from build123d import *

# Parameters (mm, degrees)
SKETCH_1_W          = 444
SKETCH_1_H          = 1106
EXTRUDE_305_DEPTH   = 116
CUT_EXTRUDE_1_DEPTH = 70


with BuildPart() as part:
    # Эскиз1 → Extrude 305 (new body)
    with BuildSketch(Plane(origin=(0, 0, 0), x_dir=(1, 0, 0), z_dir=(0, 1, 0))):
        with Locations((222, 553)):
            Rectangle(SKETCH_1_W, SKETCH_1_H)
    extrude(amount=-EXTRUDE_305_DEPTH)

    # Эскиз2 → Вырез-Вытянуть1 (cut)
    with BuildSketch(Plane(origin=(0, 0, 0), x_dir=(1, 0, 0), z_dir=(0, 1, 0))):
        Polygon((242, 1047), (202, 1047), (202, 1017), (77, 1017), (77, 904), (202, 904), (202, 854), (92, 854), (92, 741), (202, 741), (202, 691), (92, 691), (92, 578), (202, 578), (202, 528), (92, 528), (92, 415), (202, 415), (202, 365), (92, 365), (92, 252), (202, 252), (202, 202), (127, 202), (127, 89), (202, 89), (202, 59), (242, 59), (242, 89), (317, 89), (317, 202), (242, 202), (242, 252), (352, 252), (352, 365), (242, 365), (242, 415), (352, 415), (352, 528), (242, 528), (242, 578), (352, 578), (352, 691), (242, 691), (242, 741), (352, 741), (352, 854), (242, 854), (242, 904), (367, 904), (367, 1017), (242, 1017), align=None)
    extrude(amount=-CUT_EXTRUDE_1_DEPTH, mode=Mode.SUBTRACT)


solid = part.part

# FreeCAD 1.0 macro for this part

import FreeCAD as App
import Part
import Sketcher

V = App.Vector
Q = App.Units.Quantity


def add_polygon(sketch, points):
    """Adds a closed chain of lines whose ends are joined by coincident constraints."""
    first, n = sketch.GeometryCount, len(points)
    for a, b in zip(points, points[1:] + points[:1]):
        sketch.addGeometry(Part.LineSegment(App.Vector(*a, 0), App.Vector(*b, 0)), False)
    for i in range(n):
        sketch.addConstraint(Sketcher.Constraint("Coincident", first + i, 2, first + (i + 1) % n, 1))

doc = App.newDocument("Part")
body = doc.addObject("PartDesign::Body", "Body")

# Sketch on XZ plane
sketch1 = doc.addObject("Sketcher::SketchObject", "Sketch")
body.addObject(sketch1)
sketch1.AttachmentSupport = (doc.XZ_Plane, [""])
sketch1.MapMode = "FlatFace"
add_polygon(sketch1, [(0, -1106), (0, 0), (444, 0), (444, -1106)])  # lines 0-3
sketch1.addConstraint([
    Sketcher.Constraint("Vertical", 0),
    Sketcher.Constraint("Horizontal", 1),
    Sketcher.Constraint("Vertical", 2),
    Sketcher.Constraint("Horizontal", 3),
    Sketcher.Constraint("Coincident", 0, 2, -1, 1),
    Sketcher.Constraint("DistanceX", 1, 1, 1, 2, Q("444 mm")),
    Sketcher.Constraint("DistanceY", 0, 1, 0, 2, Q("1106 mm")),
])
pad1 = doc.addObject("PartDesign::Pad", "Pad")
body.addObject(pad1)
pad1.Profile = sketch1
pad1.Length = 116

# Sketch on XZ plane
sketch2 = doc.addObject("Sketcher::SketchObject", "Sketch001")
body.addObject(sketch2)
sketch2.AttachmentSupport = (doc.XZ_Plane, [""])
sketch2.MapMode = "FlatFace"
add_polygon(sketch2, [(242, -1047), (202, -1047), (202, -1017), (77, -1017), (77, -904), (202, -904), (202, -854), (92, -854), (92, -741), (202, -741), (202, -691), (92, -691), (92, -578), (202, -578), (202, -528), (92, -528), (92, -415), (202, -415), (202, -365), (92, -365), (92, -252), (202, -252), (202, -202), (127, -202), (127, -89), (202, -89), (202, -59), (242, -59), (242, -89), (317, -89), (317, -202), (242, -202), (242, -252), (352, -252), (352, -365), (242, -365), (242, -415), (352, -415), (352, -528), (242, -528), (242, -578), (352, -578), (352, -691), (242, -691), (242, -741), (352, -741), (352, -854), (242, -854), (242, -904), (367, -904), (367, -1017), (242, -1017)])  # lines 0-51
sketch2.addConstraint([
    Sketcher.Constraint("Horizontal", 0),
    Sketcher.Constraint("Vertical", 1),
    Sketcher.Constraint("Horizontal", 2),
    Sketcher.Constraint("Vertical", 3),
    Sketcher.Constraint("Horizontal", 4),
    Sketcher.Constraint("Vertical", 5),
    Sketcher.Constraint("Horizontal", 6),
    Sketcher.Constraint("Vertical", 7),
    Sketcher.Constraint("Horizontal", 8),
    Sketcher.Constraint("Vertical", 9),
    Sketcher.Constraint("Horizontal", 10),
    Sketcher.Constraint("Vertical", 11),
    Sketcher.Constraint("Horizontal", 12),
    Sketcher.Constraint("Vertical", 13),
    Sketcher.Constraint("Horizontal", 14),
    Sketcher.Constraint("Vertical", 15),
    Sketcher.Constraint("Horizontal", 16),
    Sketcher.Constraint("Vertical", 17),
    Sketcher.Constraint("Horizontal", 18),
    Sketcher.Constraint("Vertical", 19),
    Sketcher.Constraint("Horizontal", 20),
    Sketcher.Constraint("Vertical", 21),
    Sketcher.Constraint("Horizontal", 22),
    Sketcher.Constraint("Vertical", 23),
    Sketcher.Constraint("Horizontal", 24),
    Sketcher.Constraint("Vertical", 25),
    Sketcher.Constraint("Horizontal", 26),
    Sketcher.Constraint("Vertical", 27),
    Sketcher.Constraint("Horizontal", 28),
    Sketcher.Constraint("Vertical", 29),
    Sketcher.Constraint("Horizontal", 30),
    Sketcher.Constraint("Vertical", 31),
    Sketcher.Constraint("Horizontal", 32),
    Sketcher.Constraint("Vertical", 33),
    Sketcher.Constraint("Horizontal", 34),
    Sketcher.Constraint("Vertical", 35),
    Sketcher.Constraint("Horizontal", 36),
    Sketcher.Constraint("Vertical", 37),
    Sketcher.Constraint("Horizontal", 38),
    Sketcher.Constraint("Vertical", 39),
    Sketcher.Constraint("Horizontal", 40),
    Sketcher.Constraint("Vertical", 41),
    Sketcher.Constraint("Horizontal", 42),
    Sketcher.Constraint("Vertical", 43),
    Sketcher.Constraint("Horizontal", 44),
    Sketcher.Constraint("Vertical", 45),
    Sketcher.Constraint("Horizontal", 46),
    Sketcher.Constraint("Vertical", 47),
    Sketcher.Constraint("Horizontal", 48),
    Sketcher.Constraint("Vertical", 49),
    Sketcher.Constraint("Horizontal", 50),
    Sketcher.Constraint("Vertical", 51),
    Sketcher.Constraint("Horizontal", 24, 2, 27, 2),
    Sketcher.Constraint("Horizontal", 22, 2, 29, 2),
    Sketcher.Constraint("Horizontal", 20, 2, 31, 2),
    Sketcher.Constraint("Horizontal", 18, 2, 33, 2),
    Sketcher.Constraint("Horizontal", 16, 2, 35, 2),
    Sketcher.Constraint("Horizontal", 14, 2, 37, 2),
    Sketcher.Constraint("Horizontal", 12, 2, 39, 2),
    Sketcher.Constraint("Horizontal", 10, 2, 41, 2),
    Sketcher.Constraint("Horizontal", 8, 2, 43, 2),
    Sketcher.Constraint("Horizontal", 6, 2, 45, 2),
    Sketcher.Constraint("Horizontal", 4, 2, 47, 2),
    Sketcher.Constraint("Horizontal", 2, 2, 49, 2),
    Sketcher.Constraint("Vertical", 1, 2, 4, 2),
    Sketcher.Constraint("Vertical", 5, 2, 8, 2),
    Sketcher.Constraint("Vertical", 7, 2, 10, 2),
    Sketcher.Constraint("Vertical", 9, 2, 12, 2),
    Sketcher.Constraint("Vertical", 11, 2, 14, 2),
    Sketcher.Constraint("Vertical", 13, 2, 16, 2),
    Sketcher.Constraint("Vertical", 15, 2, 18, 2),
    Sketcher.Constraint("Vertical", 17, 2, 20, 2),
    Sketcher.Constraint("Vertical", 21, 2, 24, 2),
    Sketcher.Constraint("Vertical", 27, 2, 30, 2),
    Sketcher.Constraint("Vertical", 31, 2, 34, 2),
    Sketcher.Constraint("Vertical", 33, 2, 36, 2),
    Sketcher.Constraint("Vertical", 35, 2, 38, 2),
    Sketcher.Constraint("Vertical", 37, 2, 40, 2),
    Sketcher.Constraint("Vertical", 39, 2, 42, 2),
    Sketcher.Constraint("Vertical", 41, 2, 44, 2),
    Sketcher.Constraint("Vertical", 43, 2, 46, 2),
    Sketcher.Constraint("Vertical", 47, 2, 50, 2),
    Sketcher.Constraint("Equal", 24, 28),
    Sketcher.Constraint("Equal", 20, 32),
    Sketcher.Constraint("Equal", 4, 48),
    Sketcher.Constraint("Equal", 3, 7),
    Sketcher.Constraint("Equal", 5, 9),
    Sketcher.Constraint("Equal", 7, 11),
    Sketcher.Constraint("Equal", 9, 13),
    Sketcher.Constraint("Equal", 11, 15),
    Sketcher.Constraint("Equal", 13, 17),
    Sketcher.Constraint("Equal", 15, 19),
    Sketcher.Constraint("Equal", 17, 21),
    Sketcher.Constraint("Equal", 19, 23),
    Sketcher.Constraint("Equal", 1, 25),
    Sketcher.Constraint("DistanceX", 0, 2, 0, 1, Q("40 mm")),
    Sketcher.Constraint("DistanceX", 2, 2, 2, 1, Q("125 mm")),
    Sketcher.Constraint("DistanceX", 6, 2, 6, 1, Q("110 mm")),
    Sketcher.Constraint("DistanceX", 22, 2, 22, 1, Q("75 mm")),
    Sketcher.Constraint("DistanceY", 1, 1, 1, 2, Q("30 mm")),
    Sketcher.Constraint("DistanceY", 3, 1, 3, 2, Q("113 mm")),
    Sketcher.Constraint("DistanceY", 5, 1, 5, 2, Q("50 mm")),
    Sketcher.Constraint("DistanceX", -1, 1, 0, 2, Q("202 mm")),
    Sketcher.Constraint("DistanceY", 0, 2, -1, 1, Q("1047 mm")),
])
pocket1 = doc.addObject("PartDesign::Pocket", "Pocket")
body.addObject(pocket1)
pocket1.Profile = sketch2
pocket1.Length = 70
pocket1.Reversed = True

doc.recompute()
